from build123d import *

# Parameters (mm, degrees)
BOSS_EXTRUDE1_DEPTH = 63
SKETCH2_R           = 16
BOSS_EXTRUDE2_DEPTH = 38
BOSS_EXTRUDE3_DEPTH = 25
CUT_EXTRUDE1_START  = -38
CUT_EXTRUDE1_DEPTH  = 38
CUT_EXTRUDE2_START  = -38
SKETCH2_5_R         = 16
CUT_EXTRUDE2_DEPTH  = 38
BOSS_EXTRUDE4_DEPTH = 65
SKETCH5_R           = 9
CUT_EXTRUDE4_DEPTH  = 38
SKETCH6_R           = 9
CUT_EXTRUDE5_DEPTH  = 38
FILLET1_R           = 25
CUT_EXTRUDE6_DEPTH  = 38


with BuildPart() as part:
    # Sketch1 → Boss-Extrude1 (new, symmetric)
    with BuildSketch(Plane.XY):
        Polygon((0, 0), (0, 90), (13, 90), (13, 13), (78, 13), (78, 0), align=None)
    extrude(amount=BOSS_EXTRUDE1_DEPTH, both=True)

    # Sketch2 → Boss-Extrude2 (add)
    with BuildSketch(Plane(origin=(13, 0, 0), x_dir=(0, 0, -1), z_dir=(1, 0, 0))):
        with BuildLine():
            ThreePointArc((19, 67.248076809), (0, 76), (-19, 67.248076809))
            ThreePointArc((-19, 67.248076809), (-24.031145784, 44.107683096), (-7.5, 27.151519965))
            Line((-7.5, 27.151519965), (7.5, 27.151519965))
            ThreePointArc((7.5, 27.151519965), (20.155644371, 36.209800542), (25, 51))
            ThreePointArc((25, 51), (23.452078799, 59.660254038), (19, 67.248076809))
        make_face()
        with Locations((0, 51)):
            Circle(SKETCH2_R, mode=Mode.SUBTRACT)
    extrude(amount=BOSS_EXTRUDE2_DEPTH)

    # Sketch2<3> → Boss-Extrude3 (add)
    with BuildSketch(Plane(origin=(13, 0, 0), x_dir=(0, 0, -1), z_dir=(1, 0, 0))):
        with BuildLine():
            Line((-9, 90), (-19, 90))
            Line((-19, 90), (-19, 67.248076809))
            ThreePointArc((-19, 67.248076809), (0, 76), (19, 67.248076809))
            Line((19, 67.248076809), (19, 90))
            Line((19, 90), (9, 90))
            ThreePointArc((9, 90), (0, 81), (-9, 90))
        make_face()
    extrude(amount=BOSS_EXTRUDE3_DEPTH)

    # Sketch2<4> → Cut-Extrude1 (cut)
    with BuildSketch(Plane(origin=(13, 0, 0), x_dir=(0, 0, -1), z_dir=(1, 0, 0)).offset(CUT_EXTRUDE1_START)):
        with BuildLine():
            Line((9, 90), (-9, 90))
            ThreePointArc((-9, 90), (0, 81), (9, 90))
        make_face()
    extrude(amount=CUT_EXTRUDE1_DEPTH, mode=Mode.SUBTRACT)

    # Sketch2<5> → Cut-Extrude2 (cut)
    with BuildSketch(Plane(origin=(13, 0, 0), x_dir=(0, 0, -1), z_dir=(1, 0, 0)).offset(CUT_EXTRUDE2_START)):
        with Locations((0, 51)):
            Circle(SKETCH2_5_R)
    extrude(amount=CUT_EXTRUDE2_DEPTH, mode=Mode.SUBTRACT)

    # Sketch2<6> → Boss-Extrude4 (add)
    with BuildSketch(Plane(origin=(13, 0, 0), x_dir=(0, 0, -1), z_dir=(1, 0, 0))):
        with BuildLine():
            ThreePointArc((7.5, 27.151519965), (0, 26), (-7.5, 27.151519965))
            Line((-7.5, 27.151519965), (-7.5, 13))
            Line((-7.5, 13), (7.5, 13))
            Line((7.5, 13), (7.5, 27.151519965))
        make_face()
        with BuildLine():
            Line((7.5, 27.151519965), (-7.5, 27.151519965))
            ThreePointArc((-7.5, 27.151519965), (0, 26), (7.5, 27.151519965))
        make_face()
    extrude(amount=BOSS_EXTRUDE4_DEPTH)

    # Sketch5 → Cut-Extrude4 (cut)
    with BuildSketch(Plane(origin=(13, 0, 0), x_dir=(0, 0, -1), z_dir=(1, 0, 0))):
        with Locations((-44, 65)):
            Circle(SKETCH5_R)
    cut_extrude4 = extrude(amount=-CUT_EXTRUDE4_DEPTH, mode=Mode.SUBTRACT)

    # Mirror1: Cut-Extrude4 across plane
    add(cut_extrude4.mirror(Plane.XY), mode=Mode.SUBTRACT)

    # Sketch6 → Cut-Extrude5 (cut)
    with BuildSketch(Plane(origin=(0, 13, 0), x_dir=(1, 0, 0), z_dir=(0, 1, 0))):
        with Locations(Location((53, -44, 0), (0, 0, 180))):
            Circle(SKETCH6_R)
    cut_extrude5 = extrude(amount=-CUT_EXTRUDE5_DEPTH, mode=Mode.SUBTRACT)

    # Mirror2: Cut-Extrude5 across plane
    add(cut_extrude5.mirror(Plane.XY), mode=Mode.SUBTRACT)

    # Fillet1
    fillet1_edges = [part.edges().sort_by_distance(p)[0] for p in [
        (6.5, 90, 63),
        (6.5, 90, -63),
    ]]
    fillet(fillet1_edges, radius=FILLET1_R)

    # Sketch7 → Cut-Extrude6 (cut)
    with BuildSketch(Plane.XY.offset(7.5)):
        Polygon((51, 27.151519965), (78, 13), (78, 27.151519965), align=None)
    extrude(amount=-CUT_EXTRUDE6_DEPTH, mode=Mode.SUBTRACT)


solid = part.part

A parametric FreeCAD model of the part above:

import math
import FreeCAD as App
import Part
import Sketcher

V = App.Vector


def edges_at(feature, points):
    """Names of the edges that pass closest to the given points."""
    edges = feature.Shape.Edges
    near = lambda p: min(range(len(edges)), key=lambda i: edges[i].distToShape(Part.Vertex(*p))[0])
    return sorted({f"Edge{near(p) + 1}" for p in points})

doc = App.newDocument("Part")
body = doc.addObject("PartDesign::Body", "Body")

# Sketch on XY plane
sketch1 = doc.addObject("Sketcher::SketchObject", "Sketch")
body.addObject(sketch1)
sketch1.AttachmentSupport = (doc.XY_Plane, [""])
sketch1.MapMode = "FlatFace"
sketch1.addGeometry([
    Part.LineSegment(V(0, 90, 0), V(0, 0, 0)),  # 0
    Part.LineSegment(V(0, 0, 0), V(78, 0, 0)),  # 1
    Part.LineSegment(V(78, 0, 0), V(78, 13, 0)),  # 2
    Part.LineSegment(V(78, 13, 0), V(13, 13, 0)),  # 3
    Part.LineSegment(V(13, 13, 0), V(13, 90, 0)),  # 4
    Part.LineSegment(V(13, 90, 0), V(0, 90, 0)),  # 5
], False)
sketch1.addConstraint([
    Sketcher.Constraint("Coincident", 0, 2, 1, 1),
    Sketcher.Constraint("Coincident", 1, 2, 2, 1),
    Sketcher.Constraint("Coincident", 2, 2, 3, 1),
    Sketcher.Constraint("Coincident", 3, 2, 4, 1),
    Sketcher.Constraint("Coincident", 4, 2, 5, 1),
    Sketcher.Constraint("Coincident", 5, 2, 0, 1),
    Sketcher.Constraint("Vertical", 0),
    Sketcher.Constraint("Horizontal", 1),
    Sketcher.Constraint("Vertical", 2),
    Sketcher.Constraint("Horizontal", 3),
    Sketcher.Constraint("Vertical", 4),
    Sketcher.Constraint("Horizontal", 5),
    Sketcher.Constraint("Coincident", 0, 2, -1, 1),
    Sketcher.Constraint("Equal", 5, 2),
    Sketcher.Constraint("DistanceX", 1, 1, 1, 2, 78.0),
    Sketcher.Constraint("DistanceX", 3, 2, 3, 1, 65.0),
    Sketcher.Constraint("DistanceY", 0, 2, 0, 1, 90.0),
])
pad1 = doc.addObject("PartDesign::Pad", "Pad")
body.addObject(pad1)
pad1.Profile = sketch1
pad1.Length = 126
pad1.Midplane = True

# Sketch on YZ plane
sketch2 = doc.addObject("Sketcher::SketchObject", "Sketch001")
body.addObject(sketch2)
sketch2.AttachmentSupport = (doc.YZ_Plane, [""])
sketch2.MapMode = "FlatFace"
sketch2.AttachmentOffset = App.Placement(V(0, 0, 13), App.Rotation())
sketch2.addGeometry([
    Part.ArcOfCircle(Part.Circle(V(51, 0, 0), V(0, 0, 1), 25), math.radians(-49), math.radians(49)),  # 0
    Part.ArcOfCircle(Part.Circle(V(51, 0, 0), V(0, 0, 1), 25), math.radians(49), math.radians(163)),  # 1
    Part.LineSegment(V(27, 8, 0), V(27, -8, 0)),  # 2
    Part.ArcOfCircle(Part.Circle(V(51, 0, 0), V(0, 0, 1), 25), math.radians(-163), math.radians(-90)),  # 3
    Part.ArcOfCircle(Part.Circle(V(51, 0, 0), V(0, 0, 1), 25), math.radians(-90), math.radians(-49)),  # 4
    Part.Circle(V(51, 0, 0), V(0, 0, 1), 16),  # 5
], False)
sketch2.addConstraint([
    Sketcher.Constraint("Tangent", 0, 2, 1, 1),
    Sketcher.Constraint("Coincident", 1, 2, 2, 1),
    Sketcher.Constraint("Coincident", 2, 2, 3, 1),
    Sketcher.Constraint("Tangent", 3, 2, 4, 1),
    Sketcher.Constraint("Tangent", 4, 2, 0, 1),
    Sketcher.Constraint("Vertical", 2),
    Sketcher.Constraint("Coincident", 3, 3, 0, 3),
    Sketcher.Constraint("Coincident", 5, 3, 0, 3),
    Sketcher.Constraint("Equal", 0, 1),
    Sketcher.Constraint("Symmetric", 0, 2, 4, 2, -1),
    Sketcher.Constraint("Vertical", 5, 3, 3, 2),
    Sketcher.Constraint("Diameter", 5, 32.0),
    Sketcher.Constraint("Radius", 0, 25.0),
    Sketcher.Constraint("DistanceY", 2, 2, 2, 1, 15.0),
    Sketcher.Constraint("DistanceX", -1, 1, 0, 3, 51.0),
    Sketcher.Constraint("DistanceY", -1, 1, 0, 2, 19.0),
])
pad2 = doc.addObject("PartDesign::Pad", "Pad001")
body.addObject(pad2)
pad2.Profile = sketch2
pad2.Length = 38

# Sketch on YZ plane
sketch3 = doc.addObject("Sketcher::SketchObject", "Sketch002")
body.addObject(sketch3)
sketch3.AttachmentSupport = (doc.YZ_Plane, [""])
sketch3.MapMode = "FlatFace"
sketch3.AttachmentOffset = App.Placement(V(0, 0, 13), App.Rotation())
sketch3.addGeometry([
    Part.LineSegment(V(90, 9, 0), V(90, 19, 0)),  # 0
    Part.LineSegment(V(90, 19, 0), V(67, 19, 0)),  # 1
    Part.ArcOfCircle(Part.Circle(V(51, 0, 0), V(0, 0, 1), 25), math.radians(-49), math.radians(49)),  # 2
    Part.LineSegment(V(67, -19, 0), V(90, -19, 0)),  # 3
    Part.LineSegment(V(90, -19, 0), V(90, -9, 0)),  # 4
    Part.ArcOfCircle(Part.Circle(V(90, 0, 0), V(0, 0, 1), 9), math.radians(90), math.radians(270)),  # 5
], False)
sketch3.addConstraint([
    Sketcher.Constraint("Coincident", 0, 2, 1, 1),
    Sketcher.Constraint("Coincident", 1, 2, 2, 2),
    Sketcher.Constraint("Coincident", 2, 1, 3, 1),
    Sketcher.Constraint("Coincident", 3, 2, 4, 1),
    Sketcher.Constraint("Coincident", 4, 2, 5, 2),
    Sketcher.Constraint("Coincident", 5, 1, 0, 1),
    Sketcher.Constraint("Vertical", 0),
    Sketcher.Constraint("Horizontal", 1),
    Sketcher.Constraint("Horizontal", 3),
    Sketcher.Constraint("Vertical", 4),
    Sketcher.Constraint("Symmetric", 1, 2, 2, 1, -1),
    Sketcher.Constraint("Symmetric", 4, 2, 5, 1, -1),
    Sketcher.Constraint("Vertical", 5, 3, 0, 2),
    Sketcher.Constraint("Radius", 2, 25.0),
    Sketcher.Constraint("Radius", 5, 9.0),
    Sketcher.Constraint("DistanceY", 0, 1, 0, 2, 10.0),
    Sketcher.Constraint("DistanceX", -1, 1, 2, 3, 51.0),
    Sketcher.Constraint("DistanceX", -1, 1, 5, 3, 90.0),
])
pad3 = doc.addObject("PartDesign::Pad", "Pad002")
body.addObject(pad3)
pad3.Profile = sketch3
pad3.Length = 25

# Sketch on YZ plane
sketch4 = doc.addObject("Sketcher::SketchObject", "Sketch003")
body.addObject(sketch4)
sketch4.AttachmentSupport = (doc.YZ_Plane, [""])
sketch4.MapMode = "FlatFace"
sketch4.AttachmentOffset = App.Placement(V(0, 0, -25), App.Rotation())
sketch4.addGeometry([
    Part.LineSegment(V(90, -9, 0), V(90, 9, 0)),
    Part.ArcOfCircle(Part.Circle(V(90, 0, 0), V(0, 0, 1), 9), math.radians(90), math.radians(270)),
], False)
sketch4.addConstraint([
    Sketcher.Constraint("Coincident", 0, 1, 1, 2),
    Sketcher.Constraint("Coincident", 1, 1, 0, 2),
    Sketcher.Constraint("Vertical", 0),
    Sketcher.Constraint("PointOnObject", 1, 3, -1),
    Sketcher.Constraint("Vertical", 1, 3, 0, 1),
    Sketcher.Constraint("Radius", 1, 9.0),
    Sketcher.Constraint("DistanceX", -1, 1, 1, 3, 90.0),
])
pocket1 = doc.addObject("PartDesign::Pocket", "Pocket")
body.addObject(pocket1)
pocket1.Profile = sketch4
pocket1.Length = 38
pocket1.Reversed = True

# Sketch on YZ plane
sketch5 = doc.addObject("Sketcher::SketchObject", "Sketch004")
body.addObject(sketch5)
sketch5.AttachmentSupport = (doc.YZ_Plane, [""])
sketch5.MapMode = "FlatFace"
sketch5.AttachmentOffset = App.Placement(V(0, 0, -25), App.Rotation())
sketch5.addGeometry(Part.Circle(V(51, 0, 0), V(0, 0, 1), 16), False)
sketch5.addConstraint([
    Sketcher.Constraint("PointOnObject", 0, 3, -1),
    Sketcher.Constraint("Diameter", 0, 32.0),
    Sketcher.Constraint("DistanceX", -1, 1, 0, 3, 51.0),
])
pocket2 = doc.addObject("PartDesign::Pocket", "Pocket001")
body.addObject(pocket2)
pocket2.Profile = sketch5
pocket2.Length = 38
pocket2.Reversed = True

# Sketch on YZ plane
sketch6 = doc.addObject("Sketcher::SketchObject", "Sketch005")
body.addObject(sketch6)
sketch6.AttachmentSupport = (doc.YZ_Plane, [""])
sketch6.MapMode = "FlatFace"
sketch6.AttachmentOffset = App.Placement(V(0, 0, 13), App.Rotation())
sketch6.addGeometry([
    Part.LineSegment(V(27, 8, 0), V(13, 8, 0)),
    Part.LineSegment(V(13, 8, 0), V(13, -8, 0)),
    Part.LineSegment(V(13, -8, 0), V(27, -8, 0)),
    Part.LineSegment(V(27, -8, 0), V(27, 8, 0)),
], False)
sketch6.addConstraint([
    Sketcher.Constraint("Coincident", 0, 2, 1, 1),
    Sketcher.Constraint("Coincident", 1, 2, 2, 1),
    Sketcher.Constraint("Coincident", 2, 2, 3, 1),
    Sketcher.Constraint("Coincident", 3, 2, 0, 1),
    Sketcher.Constraint("Horizontal", 0),
    Sketcher.Constraint("Vertical", 1),
    Sketcher.Constraint("Horizontal", 2),
    Sketcher.Constraint("Vertical", 3),
    Sketcher.Constraint("DistanceY", 1, 2, 1, 1, 15.0),
    Sketcher.Constraint("DistanceX", -1, 1, 0, 2, 13.0),
    Sketcher.Constraint("DistanceY", -1, 1, 0, 2, 7.5),
    Sketcher.Constraint("DistanceX", 0, 2, 0, 1, 14.15152),
])
pad4 = doc.addObject("PartDesign::Pad", "Pad003")
body.addObject(pad4)
pad4.Profile = sketch6
pad4.Length = 65

# Sketch on YZ plane
sketch7 = doc.addObject("Sketcher::SketchObject", "Sketch006")
body.addObject(sketch7)
sketch7.AttachmentSupport = (doc.YZ_Plane, [""])
sketch7.MapMode = "FlatFace"
sketch7.AttachmentOffset = App.Placement(V(0, 0, 13), App.Rotation())
sketch7.addGeometry(Part.Circle(V(65, 44, 0), V(0, 0, 1), 9), False)
sketch7.addConstraint([
    Sketcher.Constraint("Diameter", 0, 18.0),
    Sketcher.Constraint("DistanceX", -1, 1, 0, 3, 65.0),
    Sketcher.Constraint("DistanceY", -1, 1, 0, 3, 44.0),
])
pocket3 = doc.addObject("PartDesign::Pocket", "Pocket002")
body.addObject(pocket3)
pocket3.Profile = sketch7
pocket3.Length = 38
doc.recompute()

mirrored = doc.addObject("PartDesign::Mirrored", "Mirrored")
body.addObject(mirrored)
mirrored.Originals = [pocket3]
mirrored.MirrorPlane = (doc.XY_Plane, [""])
body.Tip = mirrored

# Sketch on XZ plane
sketch8 = doc.addObject("Sketcher::SketchObject", "Sketch007")
body.addObject(sketch8)
sketch8.AttachmentSupport = (doc.XZ_Plane, [""])
sketch8.MapMode = "FlatFace"
sketch8.AttachmentOffset = App.Placement(V(0, 0, -13), App.Rotation())
sketch8.addGeometry(Part.Circle(V(53, 44, 0), V(0, 0, 1), 9), False)
sketch8.addConstraint([
    Sketcher.Constraint("Diameter", 0, 18.0),
    Sketcher.Constraint("DistanceX", -1, 1, 0, 3, 53.0),
    Sketcher.Constraint("DistanceY", -1, 1, 0, 3, 44.0),
])
pocket4 = doc.addObject("PartDesign::Pocket", "Pocket003")
body.addObject(pocket4)
pocket4.Profile = sketch8
pocket4.Length = 38
pocket4.Reversed = True
doc.recompute()

mirrored2 = doc.addObject("PartDesign::Mirrored", "Mirrored001")
body.addObject(mirrored2)
mirrored2.Originals = [pocket4]
mirrored2.MirrorPlane = (doc.XY_Plane, [""])
body.Tip = mirrored2
doc.recompute()

fillet = doc.addObject("PartDesign::Fillet", "Fillet")
body.addObject(fillet)
fillet.Base = (mirrored2, edges_at(mirrored2, [(6.5, 90, 63), (6.5, 90, -63)]))
fillet.Radius = 25

# Sketch on XY plane
sketch9 = doc.addObject("Sketcher::SketchObject", "Sketch008")
body.addObject(sketch9)
sketch9.AttachmentSupport = (doc.XY_Plane, [""])
sketch9.MapMode = "FlatFace"
sketch9.AttachmentOffset = App.Placement(V(0, 0, 7.5), App.Rotation())
sketch9.addGeometry([
    Part.LineSegment(V(51, 27, 0), V(78, 13, 0)),
    Part.LineSegment(V(78, 13, 0), V(78, 27, 0)),
    Part.LineSegment(V(78, 27, 0), V(51, 27, 0)),
], False)
sketch9.addConstraint([
    Sketcher.Constraint("Coincident", 0, 2, 1, 1),
    Sketcher.Constraint("Coincident", 1, 2, 2, 1),
    Sketcher.Constraint("Coincident", 2, 2, 0, 1),
    Sketcher.Constraint("Vertical", 1),
    Sketcher.Constraint("Horizontal", 2),
    Sketcher.Constraint("DistanceX", 2, 2, 2, 1, 27.0),
    Sketcher.Constraint("DistanceX", -1, 1, 0, 2, 78.0),
    Sketcher.Constraint("DistanceY", -1, 1, 0, 2, 13.0),
    Sketcher.Constraint("DistanceY", 1, 1, 1, 2, 14.15152),
])
pocket5 = doc.addObject("PartDesign::Pocket", "Pocket004")
body.addObject(pocket5)
pocket5.Profile = sketch9
pocket5.Length = 38

doc.recompute()
